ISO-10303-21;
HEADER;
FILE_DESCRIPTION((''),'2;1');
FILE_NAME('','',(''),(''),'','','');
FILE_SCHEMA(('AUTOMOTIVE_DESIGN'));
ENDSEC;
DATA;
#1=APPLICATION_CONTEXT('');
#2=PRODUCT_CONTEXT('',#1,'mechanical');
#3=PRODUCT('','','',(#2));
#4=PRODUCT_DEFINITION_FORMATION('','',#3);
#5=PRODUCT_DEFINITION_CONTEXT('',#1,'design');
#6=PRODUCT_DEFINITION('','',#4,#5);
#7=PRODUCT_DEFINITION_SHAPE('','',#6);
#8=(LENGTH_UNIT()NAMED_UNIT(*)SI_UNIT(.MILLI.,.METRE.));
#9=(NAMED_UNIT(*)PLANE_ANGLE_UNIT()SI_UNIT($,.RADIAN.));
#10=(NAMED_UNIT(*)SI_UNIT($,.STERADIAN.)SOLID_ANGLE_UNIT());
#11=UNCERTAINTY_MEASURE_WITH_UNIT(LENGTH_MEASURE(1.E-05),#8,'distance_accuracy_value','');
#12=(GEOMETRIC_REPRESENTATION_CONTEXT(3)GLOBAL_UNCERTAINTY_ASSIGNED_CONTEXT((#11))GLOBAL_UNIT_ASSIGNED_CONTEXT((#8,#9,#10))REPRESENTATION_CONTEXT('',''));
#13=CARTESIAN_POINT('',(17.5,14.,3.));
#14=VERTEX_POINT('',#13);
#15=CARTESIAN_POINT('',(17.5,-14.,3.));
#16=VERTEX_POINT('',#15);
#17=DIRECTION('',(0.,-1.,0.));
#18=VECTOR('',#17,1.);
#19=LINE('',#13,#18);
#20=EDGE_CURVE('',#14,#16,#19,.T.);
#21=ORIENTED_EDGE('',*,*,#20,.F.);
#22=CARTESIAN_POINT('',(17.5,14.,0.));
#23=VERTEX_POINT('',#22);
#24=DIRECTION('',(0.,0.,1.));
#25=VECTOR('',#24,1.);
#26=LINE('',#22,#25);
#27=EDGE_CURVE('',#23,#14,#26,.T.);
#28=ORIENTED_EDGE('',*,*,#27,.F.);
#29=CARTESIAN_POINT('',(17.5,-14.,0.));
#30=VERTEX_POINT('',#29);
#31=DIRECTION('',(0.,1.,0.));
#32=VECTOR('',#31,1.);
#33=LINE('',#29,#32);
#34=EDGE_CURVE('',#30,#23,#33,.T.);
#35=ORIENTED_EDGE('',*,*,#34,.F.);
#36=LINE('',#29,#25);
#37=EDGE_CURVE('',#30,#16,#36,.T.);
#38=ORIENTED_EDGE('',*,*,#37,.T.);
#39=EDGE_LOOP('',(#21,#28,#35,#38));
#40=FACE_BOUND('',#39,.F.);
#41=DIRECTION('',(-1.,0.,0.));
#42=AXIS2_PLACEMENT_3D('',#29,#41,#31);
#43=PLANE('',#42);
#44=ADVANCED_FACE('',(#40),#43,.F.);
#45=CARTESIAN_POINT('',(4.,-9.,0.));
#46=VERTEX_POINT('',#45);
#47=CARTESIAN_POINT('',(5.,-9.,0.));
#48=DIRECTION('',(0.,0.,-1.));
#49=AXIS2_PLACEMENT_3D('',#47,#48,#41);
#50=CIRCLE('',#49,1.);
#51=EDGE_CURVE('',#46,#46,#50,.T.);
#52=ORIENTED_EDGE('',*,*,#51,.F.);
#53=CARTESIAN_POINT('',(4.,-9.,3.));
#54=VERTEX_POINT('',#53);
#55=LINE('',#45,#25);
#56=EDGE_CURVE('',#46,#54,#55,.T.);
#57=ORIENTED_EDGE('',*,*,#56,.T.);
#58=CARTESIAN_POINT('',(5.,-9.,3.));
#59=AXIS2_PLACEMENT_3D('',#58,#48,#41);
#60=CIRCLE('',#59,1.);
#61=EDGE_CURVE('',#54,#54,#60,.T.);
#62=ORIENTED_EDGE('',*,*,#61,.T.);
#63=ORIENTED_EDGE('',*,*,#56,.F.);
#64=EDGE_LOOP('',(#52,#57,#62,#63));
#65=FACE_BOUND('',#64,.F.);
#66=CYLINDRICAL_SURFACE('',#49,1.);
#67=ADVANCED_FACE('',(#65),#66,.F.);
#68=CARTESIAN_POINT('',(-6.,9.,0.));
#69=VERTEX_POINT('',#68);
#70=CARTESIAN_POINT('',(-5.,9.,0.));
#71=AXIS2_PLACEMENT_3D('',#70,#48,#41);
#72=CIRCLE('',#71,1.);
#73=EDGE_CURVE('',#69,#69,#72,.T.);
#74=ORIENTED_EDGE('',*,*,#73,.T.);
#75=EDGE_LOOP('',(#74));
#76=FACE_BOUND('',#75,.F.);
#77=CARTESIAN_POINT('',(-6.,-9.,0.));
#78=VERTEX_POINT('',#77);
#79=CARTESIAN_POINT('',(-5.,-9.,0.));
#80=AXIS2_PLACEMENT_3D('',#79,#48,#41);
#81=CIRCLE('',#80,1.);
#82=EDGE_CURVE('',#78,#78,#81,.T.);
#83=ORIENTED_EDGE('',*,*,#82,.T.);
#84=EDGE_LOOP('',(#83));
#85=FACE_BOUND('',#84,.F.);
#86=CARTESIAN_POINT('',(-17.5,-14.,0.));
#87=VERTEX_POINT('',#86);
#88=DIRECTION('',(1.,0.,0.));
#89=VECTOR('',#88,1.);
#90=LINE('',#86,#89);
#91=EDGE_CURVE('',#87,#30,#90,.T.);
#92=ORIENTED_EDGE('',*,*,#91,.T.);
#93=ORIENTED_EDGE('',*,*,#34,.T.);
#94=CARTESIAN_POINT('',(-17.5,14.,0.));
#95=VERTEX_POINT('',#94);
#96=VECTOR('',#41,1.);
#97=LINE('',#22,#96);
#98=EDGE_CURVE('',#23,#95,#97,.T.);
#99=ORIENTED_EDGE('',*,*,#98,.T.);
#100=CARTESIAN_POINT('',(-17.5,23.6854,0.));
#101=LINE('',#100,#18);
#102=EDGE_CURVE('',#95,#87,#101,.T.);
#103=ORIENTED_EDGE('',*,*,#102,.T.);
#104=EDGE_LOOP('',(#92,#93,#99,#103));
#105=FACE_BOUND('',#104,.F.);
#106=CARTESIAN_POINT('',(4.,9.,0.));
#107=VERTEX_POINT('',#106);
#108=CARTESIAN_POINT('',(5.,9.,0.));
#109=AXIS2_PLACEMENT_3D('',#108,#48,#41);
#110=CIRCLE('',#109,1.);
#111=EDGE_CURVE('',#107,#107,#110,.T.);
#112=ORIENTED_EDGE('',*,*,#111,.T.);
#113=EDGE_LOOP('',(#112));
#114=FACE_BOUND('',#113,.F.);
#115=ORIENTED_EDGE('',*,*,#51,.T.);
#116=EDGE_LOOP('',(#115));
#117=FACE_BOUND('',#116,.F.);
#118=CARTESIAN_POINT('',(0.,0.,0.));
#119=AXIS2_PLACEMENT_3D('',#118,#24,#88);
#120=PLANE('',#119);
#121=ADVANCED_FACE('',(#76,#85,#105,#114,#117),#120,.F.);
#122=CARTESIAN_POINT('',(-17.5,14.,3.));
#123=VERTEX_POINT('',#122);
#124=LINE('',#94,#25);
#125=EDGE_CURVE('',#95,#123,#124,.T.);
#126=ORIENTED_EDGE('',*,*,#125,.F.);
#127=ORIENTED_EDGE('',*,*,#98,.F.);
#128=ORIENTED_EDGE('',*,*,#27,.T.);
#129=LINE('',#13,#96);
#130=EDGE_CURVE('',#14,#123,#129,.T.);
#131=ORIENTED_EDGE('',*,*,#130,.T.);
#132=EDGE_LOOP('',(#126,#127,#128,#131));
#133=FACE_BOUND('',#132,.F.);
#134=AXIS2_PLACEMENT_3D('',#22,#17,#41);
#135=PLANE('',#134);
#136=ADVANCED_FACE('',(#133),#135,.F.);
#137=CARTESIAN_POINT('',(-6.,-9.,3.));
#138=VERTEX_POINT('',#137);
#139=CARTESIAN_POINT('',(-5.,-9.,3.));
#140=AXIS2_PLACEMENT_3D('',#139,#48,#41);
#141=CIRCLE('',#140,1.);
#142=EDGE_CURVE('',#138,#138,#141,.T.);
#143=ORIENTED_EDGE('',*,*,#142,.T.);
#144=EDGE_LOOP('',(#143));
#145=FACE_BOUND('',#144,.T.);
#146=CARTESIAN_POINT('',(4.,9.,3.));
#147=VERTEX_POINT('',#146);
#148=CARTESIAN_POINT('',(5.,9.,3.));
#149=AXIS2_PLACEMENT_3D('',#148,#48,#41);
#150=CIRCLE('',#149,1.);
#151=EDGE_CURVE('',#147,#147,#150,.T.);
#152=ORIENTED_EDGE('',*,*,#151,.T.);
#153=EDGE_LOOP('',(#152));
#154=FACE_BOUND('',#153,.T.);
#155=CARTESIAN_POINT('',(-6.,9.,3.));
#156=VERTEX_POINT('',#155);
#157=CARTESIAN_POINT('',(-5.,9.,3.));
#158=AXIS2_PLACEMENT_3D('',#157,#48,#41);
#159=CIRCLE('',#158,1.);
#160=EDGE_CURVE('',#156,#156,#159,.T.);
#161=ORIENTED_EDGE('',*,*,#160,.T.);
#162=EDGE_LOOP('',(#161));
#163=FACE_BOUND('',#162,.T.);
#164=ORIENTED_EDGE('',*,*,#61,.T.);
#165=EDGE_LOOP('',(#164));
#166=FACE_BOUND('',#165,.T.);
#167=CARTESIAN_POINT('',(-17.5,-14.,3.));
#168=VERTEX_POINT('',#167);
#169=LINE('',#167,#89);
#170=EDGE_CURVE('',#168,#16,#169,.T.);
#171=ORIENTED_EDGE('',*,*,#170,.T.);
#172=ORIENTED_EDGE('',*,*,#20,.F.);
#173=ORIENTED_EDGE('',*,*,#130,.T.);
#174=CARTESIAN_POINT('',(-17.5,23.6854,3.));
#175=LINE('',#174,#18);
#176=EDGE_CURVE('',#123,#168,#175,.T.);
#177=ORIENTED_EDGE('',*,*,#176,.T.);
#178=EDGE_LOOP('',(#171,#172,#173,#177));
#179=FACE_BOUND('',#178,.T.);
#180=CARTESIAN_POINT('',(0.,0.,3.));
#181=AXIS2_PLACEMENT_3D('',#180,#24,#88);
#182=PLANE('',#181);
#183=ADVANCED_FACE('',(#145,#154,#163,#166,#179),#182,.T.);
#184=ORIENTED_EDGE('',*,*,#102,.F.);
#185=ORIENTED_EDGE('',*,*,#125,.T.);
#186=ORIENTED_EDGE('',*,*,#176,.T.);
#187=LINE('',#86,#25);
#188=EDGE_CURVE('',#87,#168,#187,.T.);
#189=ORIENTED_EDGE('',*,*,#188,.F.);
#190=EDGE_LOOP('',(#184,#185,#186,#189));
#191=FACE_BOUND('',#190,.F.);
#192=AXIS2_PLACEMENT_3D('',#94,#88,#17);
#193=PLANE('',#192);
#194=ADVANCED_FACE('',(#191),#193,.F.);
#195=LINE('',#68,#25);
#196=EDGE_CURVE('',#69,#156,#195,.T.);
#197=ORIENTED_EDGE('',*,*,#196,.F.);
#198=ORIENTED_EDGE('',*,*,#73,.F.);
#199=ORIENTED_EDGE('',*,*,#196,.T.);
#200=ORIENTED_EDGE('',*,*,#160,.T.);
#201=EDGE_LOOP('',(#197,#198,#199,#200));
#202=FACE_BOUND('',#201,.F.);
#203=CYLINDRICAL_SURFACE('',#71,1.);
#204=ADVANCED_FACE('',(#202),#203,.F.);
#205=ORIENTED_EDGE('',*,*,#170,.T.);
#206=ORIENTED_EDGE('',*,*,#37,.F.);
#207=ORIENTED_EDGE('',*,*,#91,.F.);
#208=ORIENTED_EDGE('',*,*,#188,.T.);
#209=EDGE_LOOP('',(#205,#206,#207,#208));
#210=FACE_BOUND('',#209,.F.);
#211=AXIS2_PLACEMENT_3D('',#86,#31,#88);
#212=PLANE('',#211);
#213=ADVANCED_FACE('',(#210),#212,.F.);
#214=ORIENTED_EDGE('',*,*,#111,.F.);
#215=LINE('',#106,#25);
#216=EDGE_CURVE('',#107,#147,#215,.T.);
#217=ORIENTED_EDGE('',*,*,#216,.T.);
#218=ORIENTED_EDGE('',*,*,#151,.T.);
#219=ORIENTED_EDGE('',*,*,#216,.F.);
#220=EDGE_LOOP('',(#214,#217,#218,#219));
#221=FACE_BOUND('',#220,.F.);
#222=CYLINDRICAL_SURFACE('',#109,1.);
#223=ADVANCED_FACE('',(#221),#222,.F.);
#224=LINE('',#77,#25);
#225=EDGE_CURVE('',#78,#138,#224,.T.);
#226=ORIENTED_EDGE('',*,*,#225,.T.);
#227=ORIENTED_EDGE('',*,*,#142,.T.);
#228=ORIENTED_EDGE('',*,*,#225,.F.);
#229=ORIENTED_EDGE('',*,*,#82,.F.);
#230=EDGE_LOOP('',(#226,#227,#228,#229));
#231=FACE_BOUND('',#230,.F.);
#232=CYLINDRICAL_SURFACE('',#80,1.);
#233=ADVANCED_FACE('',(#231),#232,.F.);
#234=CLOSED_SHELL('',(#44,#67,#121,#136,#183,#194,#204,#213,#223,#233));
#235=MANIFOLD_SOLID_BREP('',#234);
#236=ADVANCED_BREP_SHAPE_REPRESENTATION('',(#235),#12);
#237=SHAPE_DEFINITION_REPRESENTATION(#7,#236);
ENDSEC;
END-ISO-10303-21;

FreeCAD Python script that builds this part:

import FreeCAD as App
import Part
import Sketcher

V = App.Vector
Q = App.Units.Quantity


def add_polygon(sketch, points):
    """Adds a closed chain of lines whose ends are joined by coincident constraints."""
    first, n = sketch.GeometryCount, len(points)
    for a, b in zip(points, points[1:] + points[:1]):
        sketch.addGeometry(Part.LineSegment(App.Vector(*a, 0), App.Vector(*b, 0)), False)
    for i in range(n):
        sketch.addConstraint(Sketcher.Constraint("Coincident", first + i, 2, first + (i + 1) % n, 1))

doc = App.newDocument("Part")
body = doc.addObject("PartDesign::Body", "Body")

# Sketch on XY plane
sketch1 = body.newObject("Sketcher::SketchObject", "Sketch")
sketch1.AttachmentSupport = (doc.getObject("XY_Plane"), [""])
sketch1.MapMode = "FlatFace"
add_polygon(sketch1, [(-18, -14), (18, -14), (18, 14), (-18, 14)])  # lines 0-3
sketch1.addConstraint(Sketcher.Constraint("Horizontal", 0))
sketch1.addConstraint(Sketcher.Constraint("Vertical", 1))
sketch1.addConstraint(Sketcher.Constraint("Horizontal", 2))
sketch1.addConstraint(Sketcher.Constraint("Vertical", 3))
sketch1.addConstraint(Sketcher.Constraint("Symmetric", 0, 2, 2, 2, -1, 1))
sketch1.addConstraint(Sketcher.Constraint("DistanceY", 0, 2, -1, 1, Q("14 mm")))
sketch1.addConstraint(Sketcher.Constraint("DistanceX", 0, 1, 0, 2, Q("35 mm")))
pad1 = body.newObject("PartDesign::Pad", "Pad")
pad1.Profile = sketch1
pad1.Length = 3

# Sketch on XY plane
sketch2 = body.newObject("Sketcher::SketchObject", "Sketch001")
sketch2.AttachmentSupport = (doc.getObject("XY_Plane"), [""])
sketch2.MapMode = "FlatFace"
sketch2.addGeometry(Part.Circle(V(-5, -9, 0), V(0, 0, 1), 1), False)
sketch2.addGeometry(Part.Circle(V(5, -9, 0), V(0, 0, 1), 1), False)
sketch2.addGeometry(Part.Circle(V(-5, 9, 0), V(0, 0, 1), 1), False)
sketch2.addGeometry(Part.Circle(V(5, 9, 0), V(0, 0, 1), 1), False)
sketch2.addConstraint(Sketcher.Constraint("Equal", 0, 1))
sketch2.addConstraint(Sketcher.Constraint("Equal", 1, 2))
sketch2.addConstraint(Sketcher.Constraint("Equal", 2, 3))
sketch2.addConstraint(Sketcher.Constraint("Symmetric", 1, 3, 2, 3, -1, 1))
sketch2.addConstraint(Sketcher.Constraint("Symmetric", 0, 3, 3, 3, -1, 1))
sketch2.addConstraint(Sketcher.Constraint("Symmetric", 0, 3, 1, 3, -2))
sketch2.addConstraint(Sketcher.Constraint("Diameter", 0, Q("2 mm")))
sketch2.addConstraint(Sketcher.Constraint("DistanceX", 0, 3, -1, 1, Q("5 mm")))
sketch2.addConstraint(Sketcher.Constraint("DistanceY", 0, 3, -1, 1, Q("9 mm")))
pocket1 = body.newObject("PartDesign::Pocket", "Pocket")
pocket1.Profile = sketch2
pocket1.Length = 3
pocket1.Reversed = True

doc.recompute()
